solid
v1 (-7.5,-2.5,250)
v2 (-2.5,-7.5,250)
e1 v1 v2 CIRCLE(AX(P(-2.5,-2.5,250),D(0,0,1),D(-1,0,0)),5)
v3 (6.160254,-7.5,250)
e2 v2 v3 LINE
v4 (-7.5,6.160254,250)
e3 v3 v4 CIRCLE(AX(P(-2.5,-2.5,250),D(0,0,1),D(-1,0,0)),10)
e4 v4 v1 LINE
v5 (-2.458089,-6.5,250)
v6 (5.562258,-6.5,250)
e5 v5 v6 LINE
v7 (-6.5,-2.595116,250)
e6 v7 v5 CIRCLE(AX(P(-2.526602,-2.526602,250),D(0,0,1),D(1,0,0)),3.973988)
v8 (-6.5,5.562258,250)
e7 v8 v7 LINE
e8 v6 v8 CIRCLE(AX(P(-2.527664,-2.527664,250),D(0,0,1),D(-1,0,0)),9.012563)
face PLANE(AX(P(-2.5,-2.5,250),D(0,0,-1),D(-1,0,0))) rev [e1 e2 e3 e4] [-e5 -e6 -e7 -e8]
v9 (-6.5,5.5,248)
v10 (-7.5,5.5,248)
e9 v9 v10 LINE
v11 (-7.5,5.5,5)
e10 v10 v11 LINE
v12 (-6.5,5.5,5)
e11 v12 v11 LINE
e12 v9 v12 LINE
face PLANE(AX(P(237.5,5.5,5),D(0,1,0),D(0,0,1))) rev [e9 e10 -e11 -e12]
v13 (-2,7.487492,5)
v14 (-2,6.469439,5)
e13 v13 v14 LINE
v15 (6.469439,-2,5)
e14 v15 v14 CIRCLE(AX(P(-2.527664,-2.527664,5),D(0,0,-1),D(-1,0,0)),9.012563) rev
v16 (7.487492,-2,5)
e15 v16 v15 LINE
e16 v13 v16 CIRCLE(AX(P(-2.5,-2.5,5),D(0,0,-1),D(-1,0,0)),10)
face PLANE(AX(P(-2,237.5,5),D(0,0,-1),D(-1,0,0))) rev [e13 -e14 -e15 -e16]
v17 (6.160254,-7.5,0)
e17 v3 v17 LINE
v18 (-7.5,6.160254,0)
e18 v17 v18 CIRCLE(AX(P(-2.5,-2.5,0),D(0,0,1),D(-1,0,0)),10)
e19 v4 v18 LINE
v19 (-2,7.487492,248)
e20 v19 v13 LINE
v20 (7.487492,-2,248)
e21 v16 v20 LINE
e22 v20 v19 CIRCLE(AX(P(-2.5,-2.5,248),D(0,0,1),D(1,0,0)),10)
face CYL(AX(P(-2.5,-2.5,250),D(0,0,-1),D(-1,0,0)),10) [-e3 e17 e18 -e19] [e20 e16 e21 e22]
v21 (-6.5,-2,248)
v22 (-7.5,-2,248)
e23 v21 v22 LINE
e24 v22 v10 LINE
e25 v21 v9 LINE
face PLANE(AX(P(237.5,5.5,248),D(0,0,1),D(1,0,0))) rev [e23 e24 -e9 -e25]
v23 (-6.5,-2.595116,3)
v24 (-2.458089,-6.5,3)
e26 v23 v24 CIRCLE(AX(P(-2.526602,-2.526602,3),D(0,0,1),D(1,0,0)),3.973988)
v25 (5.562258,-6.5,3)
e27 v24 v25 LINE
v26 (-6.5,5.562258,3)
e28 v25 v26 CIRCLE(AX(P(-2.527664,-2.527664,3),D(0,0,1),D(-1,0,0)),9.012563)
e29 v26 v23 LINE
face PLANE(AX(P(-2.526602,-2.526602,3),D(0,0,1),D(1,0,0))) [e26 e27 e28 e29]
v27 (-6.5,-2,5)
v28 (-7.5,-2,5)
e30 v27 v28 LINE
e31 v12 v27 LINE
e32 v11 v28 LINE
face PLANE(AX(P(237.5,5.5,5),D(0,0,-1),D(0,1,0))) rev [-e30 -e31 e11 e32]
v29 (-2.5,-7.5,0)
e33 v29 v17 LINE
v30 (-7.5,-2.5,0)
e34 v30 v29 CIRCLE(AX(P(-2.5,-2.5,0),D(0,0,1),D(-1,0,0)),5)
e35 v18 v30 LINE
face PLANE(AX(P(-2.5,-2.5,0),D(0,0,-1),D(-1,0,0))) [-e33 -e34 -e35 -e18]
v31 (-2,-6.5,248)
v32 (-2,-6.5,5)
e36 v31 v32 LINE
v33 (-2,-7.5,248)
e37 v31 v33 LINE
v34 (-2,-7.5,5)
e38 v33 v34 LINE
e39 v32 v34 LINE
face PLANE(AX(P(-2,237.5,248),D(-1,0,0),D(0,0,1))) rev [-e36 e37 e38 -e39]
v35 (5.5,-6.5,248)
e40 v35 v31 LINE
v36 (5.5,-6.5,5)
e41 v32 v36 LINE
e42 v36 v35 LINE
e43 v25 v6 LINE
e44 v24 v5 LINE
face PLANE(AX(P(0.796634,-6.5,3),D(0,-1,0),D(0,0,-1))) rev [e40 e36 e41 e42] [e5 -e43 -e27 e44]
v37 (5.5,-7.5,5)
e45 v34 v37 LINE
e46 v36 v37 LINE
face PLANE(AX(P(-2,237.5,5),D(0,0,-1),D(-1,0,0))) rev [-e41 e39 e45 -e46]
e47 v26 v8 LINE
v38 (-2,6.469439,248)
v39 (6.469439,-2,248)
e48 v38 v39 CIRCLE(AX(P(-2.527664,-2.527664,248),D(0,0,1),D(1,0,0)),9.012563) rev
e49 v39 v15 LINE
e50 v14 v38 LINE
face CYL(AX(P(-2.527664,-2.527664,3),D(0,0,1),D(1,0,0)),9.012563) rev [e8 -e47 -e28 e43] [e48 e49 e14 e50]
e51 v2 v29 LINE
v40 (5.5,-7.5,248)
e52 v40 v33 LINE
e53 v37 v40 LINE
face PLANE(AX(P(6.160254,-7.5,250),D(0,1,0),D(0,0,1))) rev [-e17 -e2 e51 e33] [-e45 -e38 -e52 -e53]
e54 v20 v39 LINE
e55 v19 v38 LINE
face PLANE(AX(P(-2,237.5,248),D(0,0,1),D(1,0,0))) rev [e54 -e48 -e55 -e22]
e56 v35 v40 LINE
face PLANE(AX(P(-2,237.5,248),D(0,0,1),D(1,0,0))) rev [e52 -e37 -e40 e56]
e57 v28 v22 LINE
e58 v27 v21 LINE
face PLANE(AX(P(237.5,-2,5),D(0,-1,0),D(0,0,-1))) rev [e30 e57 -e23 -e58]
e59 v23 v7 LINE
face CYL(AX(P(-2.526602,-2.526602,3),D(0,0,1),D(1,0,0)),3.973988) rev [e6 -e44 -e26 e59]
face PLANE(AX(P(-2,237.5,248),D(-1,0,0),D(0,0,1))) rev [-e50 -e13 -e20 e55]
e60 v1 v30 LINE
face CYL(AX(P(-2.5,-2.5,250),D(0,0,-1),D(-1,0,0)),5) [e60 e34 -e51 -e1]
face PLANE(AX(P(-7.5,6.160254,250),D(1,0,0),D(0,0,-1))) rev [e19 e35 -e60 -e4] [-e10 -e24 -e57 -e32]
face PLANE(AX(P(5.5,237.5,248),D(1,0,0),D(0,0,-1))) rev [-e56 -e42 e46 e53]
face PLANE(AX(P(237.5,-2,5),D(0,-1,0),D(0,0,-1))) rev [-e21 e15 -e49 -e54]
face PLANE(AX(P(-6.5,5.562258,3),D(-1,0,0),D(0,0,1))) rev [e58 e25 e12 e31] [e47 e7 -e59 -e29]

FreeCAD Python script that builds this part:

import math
import FreeCAD as App
import Part
import Sketcher
from FreeCAD import Vector
Q = App.Units.Quantity

doc = App.newDocument("Part")
body = doc.addObject("PartDesign::Body", "Body")

sketch1 = doc.addObject("Sketcher::SketchObject", "Sketch")
body.addObject(sketch1)
sketch1.AttachmentSupport = (doc.XY_Plane, [""])
sketch1.MapMode = "FlatFace"
sketch1.addGeometry(Part.LineSegment(Vector(-7.5, 6.160254, 0), Vector(-7.5, -2.5, 0)), False)
sketch1.addGeometry(Part.ArcOfCircle(Part.Circle(Vector(-2.5, -2.5, 0), Vector(0, 0, 1), 5), math.radians(180), math.radians(270)), False)
sketch1.addGeometry(Part.LineSegment(Vector(-2.5, -7.5, 0), Vector(6.160254, -7.5, 0)), False)
sketch1.addGeometry(Part.ArcOfCircle(Part.Circle(Vector(-2.5, -2.5, 0), Vector(0, 0, 1), 10), math.radians(-30), math.radians(120)), False)
sketch1.addConstraint(Sketcher.Constraint("Tangent", 0, 2, 1, 1))
sketch1.addConstraint(Sketcher.Constraint("Tangent", 1, 2, 2, 1))
sketch1.addConstraint(Sketcher.Constraint("Coincident", 2, 2, 3, 1))
sketch1.addConstraint(Sketcher.Constraint("Coincident", 3, 2, 0, 1))
sketch1.addConstraint(Sketcher.Constraint("Vertical", 0))
sketch1.addConstraint(Sketcher.Constraint("Horizontal", 2))
sketch1.addConstraint(Sketcher.Constraint("Coincident", 3, 3, 1, 3))
sketch1.addConstraint(Sketcher.Constraint("Radius", 1, Q("5 mm")))
sketch1.addConstraint(Sketcher.Constraint("Radius", 3, Q("10 mm")))
sketch1.addConstraint(Sketcher.Constraint("DistanceX", 1, 3, -1, 1, Q("2.5 mm")))
sketch1.addConstraint(Sketcher.Constraint("DistanceY", 1, 3, -1, 1, Q("2.5 mm")))
pad1 = doc.addObject("PartDesign::Pad", "Pad")
body.addObject(pad1)
pad1.Profile = sketch1
pad1.Length = 250

sketch2 = doc.addObject("Sketcher::SketchObject", "Sketch001")
body.addObject(sketch2)
sketch2.AttachmentSupport = (doc.XY_Plane, [""])
sketch2.MapMode = "FlatFace"
sketch2.AttachmentOffset = App.Placement(Vector(0, 0, 250), App.Rotation())
sketch2.addGeometry(Part.LineSegment(Vector(-6.5, 5.562258, 0), Vector(-6.5, -2.595116, 0)), False)
sketch2.addGeometry(Part.ArcOfCircle(Part.Circle(Vector(-2.526602, -2.526602, 0), Vector(0, 0, 1), 3.973988), math.radians(-179.012149), math.radians(-89.012149)), False)
sketch2.addGeometry(Part.LineSegment(Vector(-2.458089, -6.5, 0), Vector(5.562258, -6.5, 0)), False)
sketch2.addGeometry(Part.ArcOfCircle(Part.Circle(Vector(-2.527664, -2.527664, 0), Vector(0, 0, 1), 9.012563), math.radians(-26.152091), math.radians(116.152091)), False)
sketch2.addConstraint(Sketcher.Constraint("Coincident", 0, 2, 1, 1))
sketch2.addConstraint(Sketcher.Constraint("Coincident", 1, 2, 2, 1))
sketch2.addConstraint(Sketcher.Constraint("Coincident", 2, 2, 3, 1))
sketch2.addConstraint(Sketcher.Constraint("Coincident", 3, 2, 0, 1))
sketch2.addConstraint(Sketcher.Constraint("Vertical", 0))
sketch2.addConstraint(Sketcher.Constraint("Horizontal", 2))
sketch2.addConstraint(Sketcher.Constraint("DistanceX", 0, 2, -1, 1, Q("6.5 mm")))
sketch2.addConstraint(Sketcher.Constraint("DistanceY", 1, 2, -1, 1, Q("6.5 mm")))
sketch2.addConstraint(Sketcher.Constraint("Radius", 1, Q("3.973988 mm")))
sketch2.addConstraint(Sketcher.Constraint("Radius", 3, Q("9.012563 mm")))
sketch2.addConstraint(Sketcher.Constraint("DistanceX", 2, 1, 2, 2, Q("8.020347 mm")))
sketch2.addConstraint(Sketcher.Constraint("DistanceY", 0, 2, 0, 1, Q("8.157373 mm")))
sketch2.addConstraint(Sketcher.Constraint("DistanceX", 1, 2, -1, 1, Q("2.458089 mm")))
sketch2.addConstraint(Sketcher.Constraint("DistanceX", 3, 3, 1, 3, Q("0.001062 mm")))
pocket1 = doc.addObject("PartDesign::Pocket", "Pocket")
body.addObject(pocket1)
pocket1.Profile = sketch2
pocket1.Length = 247

sketch3 = doc.addObject("Sketcher::SketchObject", "Sketch002")
body.addObject(sketch3)
sketch3.AttachmentSupport = (doc.XZ_Plane, [""])
sketch3.MapMode = "FlatFace"
sketch3.AttachmentOffset = App.Placement(Vector(0, 0, 7.5), App.Rotation())
sketch3.addGeometry(Part.LineSegment(Vector(-2, 248, 0), Vector(-2, 5, 0)), False)
sketch3.addGeometry(Part.LineSegment(Vector(-2, 5, 0), Vector(5.5, 5, 0)), False)
sketch3.addGeometry(Part.LineSegment(Vector(5.5, 5, 0), Vector(5.5, 248, 0)), False)
sketch3.addGeometry(Part.LineSegment(Vector(5.5, 248, 0), Vector(-2, 248, 0)), False)
sketch3.addConstraint(Sketcher.Constraint("Coincident", 0, 2, 1, 1))
sketch3.addConstraint(Sketcher.Constraint("Coincident", 1, 2, 2, 1))
sketch3.addConstraint(Sketcher.Constraint("Coincident", 2, 2, 3, 1))
sketch3.addConstraint(Sketcher.Constraint("Coincident", 3, 2, 0, 1))
sketch3.addConstraint(Sketcher.Constraint("Vertical", 0))
sketch3.addConstraint(Sketcher.Constraint("Horizontal", 1))
sketch3.addConstraint(Sketcher.Constraint("Vertical", 2))
sketch3.addConstraint(Sketcher.Constraint("Horizontal", 3))
sketch3.addConstraint(Sketcher.Constraint("DistanceY", 0, 2, 0, 1, Q("243 mm")))
sketch3.addConstraint(Sketcher.Constraint("DistanceX", 1, 1, 1, 2, Q("7.5 mm")))
sketch3.addConstraint(Sketcher.Constraint("DistanceX", 0, 2, -1, 1, Q("2 mm")))
sketch3.addConstraint(Sketcher.Constraint("DistanceY", -1, 1, 0, 2, Q("5 mm")))
pocket2 = doc.addObject("PartDesign::Pocket", "Pocket001")
body.addObject(pocket2)
pocket2.Profile = sketch3
pocket2.Length = 245

sketch4 = doc.addObject("Sketcher::SketchObject", "Sketch003")
body.addObject(sketch4)
sketch4.AttachmentSupport = (doc.YZ_Plane, [""])
sketch4.MapMode = "FlatFace"
sketch4.AttachmentOffset = App.Placement(Vector(0, 0, -7.5), App.Rotation())
sketch4.addGeometry(Part.LineSegment(Vector(5.5, 5, 0), Vector(-2, 5, 0)), False)
sketch4.addGeometry(Part.LineSegment(Vector(-2, 5, 0), Vector(-2, 248, 0)), False)
sketch4.addGeometry(Part.LineSegment(Vector(-2, 248, 0), Vector(5.5, 248, 0)), False)
sketch4.addGeometry(Part.LineSegment(Vector(5.5, 248, 0), Vector(5.5, 5, 0)), False)
sketch4.addConstraint(Sketcher.Constraint("Coincident", 0, 2, 1, 1))
sketch4.addConstraint(Sketcher.Constraint("Coincident", 1, 2, 2, 1))
sketch4.addConstraint(Sketcher.Constraint("Coincident", 2, 2, 3, 1))
sketch4.addConstraint(Sketcher.Constraint("Coincident", 3, 2, 0, 1))
sketch4.addConstraint(Sketcher.Constraint("Horizontal", 0))
sketch4.addConstraint(Sketcher.Constraint("Vertical", 1))
sketch4.addConstraint(Sketcher.Constraint("Horizontal", 2))
sketch4.addConstraint(Sketcher.Constraint("Vertical", 3))
sketch4.addConstraint(Sketcher.Constraint("DistanceY", 1, 1, 1, 2, Q("243 mm")))
sketch4.addConstraint(Sketcher.Constraint("DistanceX", 0, 2, 0, 1, Q("7.5 mm")))
sketch4.addConstraint(Sketcher.Constraint("DistanceX", 0, 2, -1, 1, Q("2 mm")))
sketch4.addConstraint(Sketcher.Constraint("DistanceY", -1, 1, 0, 2, Q("5 mm")))
pocket3 = doc.addObject("PartDesign::Pocket", "Pocket002")
body.addObject(pocket3)
pocket3.Profile = sketch4
pocket3.Length = 245
pocket3.Reversed = True

doc.recompute()
